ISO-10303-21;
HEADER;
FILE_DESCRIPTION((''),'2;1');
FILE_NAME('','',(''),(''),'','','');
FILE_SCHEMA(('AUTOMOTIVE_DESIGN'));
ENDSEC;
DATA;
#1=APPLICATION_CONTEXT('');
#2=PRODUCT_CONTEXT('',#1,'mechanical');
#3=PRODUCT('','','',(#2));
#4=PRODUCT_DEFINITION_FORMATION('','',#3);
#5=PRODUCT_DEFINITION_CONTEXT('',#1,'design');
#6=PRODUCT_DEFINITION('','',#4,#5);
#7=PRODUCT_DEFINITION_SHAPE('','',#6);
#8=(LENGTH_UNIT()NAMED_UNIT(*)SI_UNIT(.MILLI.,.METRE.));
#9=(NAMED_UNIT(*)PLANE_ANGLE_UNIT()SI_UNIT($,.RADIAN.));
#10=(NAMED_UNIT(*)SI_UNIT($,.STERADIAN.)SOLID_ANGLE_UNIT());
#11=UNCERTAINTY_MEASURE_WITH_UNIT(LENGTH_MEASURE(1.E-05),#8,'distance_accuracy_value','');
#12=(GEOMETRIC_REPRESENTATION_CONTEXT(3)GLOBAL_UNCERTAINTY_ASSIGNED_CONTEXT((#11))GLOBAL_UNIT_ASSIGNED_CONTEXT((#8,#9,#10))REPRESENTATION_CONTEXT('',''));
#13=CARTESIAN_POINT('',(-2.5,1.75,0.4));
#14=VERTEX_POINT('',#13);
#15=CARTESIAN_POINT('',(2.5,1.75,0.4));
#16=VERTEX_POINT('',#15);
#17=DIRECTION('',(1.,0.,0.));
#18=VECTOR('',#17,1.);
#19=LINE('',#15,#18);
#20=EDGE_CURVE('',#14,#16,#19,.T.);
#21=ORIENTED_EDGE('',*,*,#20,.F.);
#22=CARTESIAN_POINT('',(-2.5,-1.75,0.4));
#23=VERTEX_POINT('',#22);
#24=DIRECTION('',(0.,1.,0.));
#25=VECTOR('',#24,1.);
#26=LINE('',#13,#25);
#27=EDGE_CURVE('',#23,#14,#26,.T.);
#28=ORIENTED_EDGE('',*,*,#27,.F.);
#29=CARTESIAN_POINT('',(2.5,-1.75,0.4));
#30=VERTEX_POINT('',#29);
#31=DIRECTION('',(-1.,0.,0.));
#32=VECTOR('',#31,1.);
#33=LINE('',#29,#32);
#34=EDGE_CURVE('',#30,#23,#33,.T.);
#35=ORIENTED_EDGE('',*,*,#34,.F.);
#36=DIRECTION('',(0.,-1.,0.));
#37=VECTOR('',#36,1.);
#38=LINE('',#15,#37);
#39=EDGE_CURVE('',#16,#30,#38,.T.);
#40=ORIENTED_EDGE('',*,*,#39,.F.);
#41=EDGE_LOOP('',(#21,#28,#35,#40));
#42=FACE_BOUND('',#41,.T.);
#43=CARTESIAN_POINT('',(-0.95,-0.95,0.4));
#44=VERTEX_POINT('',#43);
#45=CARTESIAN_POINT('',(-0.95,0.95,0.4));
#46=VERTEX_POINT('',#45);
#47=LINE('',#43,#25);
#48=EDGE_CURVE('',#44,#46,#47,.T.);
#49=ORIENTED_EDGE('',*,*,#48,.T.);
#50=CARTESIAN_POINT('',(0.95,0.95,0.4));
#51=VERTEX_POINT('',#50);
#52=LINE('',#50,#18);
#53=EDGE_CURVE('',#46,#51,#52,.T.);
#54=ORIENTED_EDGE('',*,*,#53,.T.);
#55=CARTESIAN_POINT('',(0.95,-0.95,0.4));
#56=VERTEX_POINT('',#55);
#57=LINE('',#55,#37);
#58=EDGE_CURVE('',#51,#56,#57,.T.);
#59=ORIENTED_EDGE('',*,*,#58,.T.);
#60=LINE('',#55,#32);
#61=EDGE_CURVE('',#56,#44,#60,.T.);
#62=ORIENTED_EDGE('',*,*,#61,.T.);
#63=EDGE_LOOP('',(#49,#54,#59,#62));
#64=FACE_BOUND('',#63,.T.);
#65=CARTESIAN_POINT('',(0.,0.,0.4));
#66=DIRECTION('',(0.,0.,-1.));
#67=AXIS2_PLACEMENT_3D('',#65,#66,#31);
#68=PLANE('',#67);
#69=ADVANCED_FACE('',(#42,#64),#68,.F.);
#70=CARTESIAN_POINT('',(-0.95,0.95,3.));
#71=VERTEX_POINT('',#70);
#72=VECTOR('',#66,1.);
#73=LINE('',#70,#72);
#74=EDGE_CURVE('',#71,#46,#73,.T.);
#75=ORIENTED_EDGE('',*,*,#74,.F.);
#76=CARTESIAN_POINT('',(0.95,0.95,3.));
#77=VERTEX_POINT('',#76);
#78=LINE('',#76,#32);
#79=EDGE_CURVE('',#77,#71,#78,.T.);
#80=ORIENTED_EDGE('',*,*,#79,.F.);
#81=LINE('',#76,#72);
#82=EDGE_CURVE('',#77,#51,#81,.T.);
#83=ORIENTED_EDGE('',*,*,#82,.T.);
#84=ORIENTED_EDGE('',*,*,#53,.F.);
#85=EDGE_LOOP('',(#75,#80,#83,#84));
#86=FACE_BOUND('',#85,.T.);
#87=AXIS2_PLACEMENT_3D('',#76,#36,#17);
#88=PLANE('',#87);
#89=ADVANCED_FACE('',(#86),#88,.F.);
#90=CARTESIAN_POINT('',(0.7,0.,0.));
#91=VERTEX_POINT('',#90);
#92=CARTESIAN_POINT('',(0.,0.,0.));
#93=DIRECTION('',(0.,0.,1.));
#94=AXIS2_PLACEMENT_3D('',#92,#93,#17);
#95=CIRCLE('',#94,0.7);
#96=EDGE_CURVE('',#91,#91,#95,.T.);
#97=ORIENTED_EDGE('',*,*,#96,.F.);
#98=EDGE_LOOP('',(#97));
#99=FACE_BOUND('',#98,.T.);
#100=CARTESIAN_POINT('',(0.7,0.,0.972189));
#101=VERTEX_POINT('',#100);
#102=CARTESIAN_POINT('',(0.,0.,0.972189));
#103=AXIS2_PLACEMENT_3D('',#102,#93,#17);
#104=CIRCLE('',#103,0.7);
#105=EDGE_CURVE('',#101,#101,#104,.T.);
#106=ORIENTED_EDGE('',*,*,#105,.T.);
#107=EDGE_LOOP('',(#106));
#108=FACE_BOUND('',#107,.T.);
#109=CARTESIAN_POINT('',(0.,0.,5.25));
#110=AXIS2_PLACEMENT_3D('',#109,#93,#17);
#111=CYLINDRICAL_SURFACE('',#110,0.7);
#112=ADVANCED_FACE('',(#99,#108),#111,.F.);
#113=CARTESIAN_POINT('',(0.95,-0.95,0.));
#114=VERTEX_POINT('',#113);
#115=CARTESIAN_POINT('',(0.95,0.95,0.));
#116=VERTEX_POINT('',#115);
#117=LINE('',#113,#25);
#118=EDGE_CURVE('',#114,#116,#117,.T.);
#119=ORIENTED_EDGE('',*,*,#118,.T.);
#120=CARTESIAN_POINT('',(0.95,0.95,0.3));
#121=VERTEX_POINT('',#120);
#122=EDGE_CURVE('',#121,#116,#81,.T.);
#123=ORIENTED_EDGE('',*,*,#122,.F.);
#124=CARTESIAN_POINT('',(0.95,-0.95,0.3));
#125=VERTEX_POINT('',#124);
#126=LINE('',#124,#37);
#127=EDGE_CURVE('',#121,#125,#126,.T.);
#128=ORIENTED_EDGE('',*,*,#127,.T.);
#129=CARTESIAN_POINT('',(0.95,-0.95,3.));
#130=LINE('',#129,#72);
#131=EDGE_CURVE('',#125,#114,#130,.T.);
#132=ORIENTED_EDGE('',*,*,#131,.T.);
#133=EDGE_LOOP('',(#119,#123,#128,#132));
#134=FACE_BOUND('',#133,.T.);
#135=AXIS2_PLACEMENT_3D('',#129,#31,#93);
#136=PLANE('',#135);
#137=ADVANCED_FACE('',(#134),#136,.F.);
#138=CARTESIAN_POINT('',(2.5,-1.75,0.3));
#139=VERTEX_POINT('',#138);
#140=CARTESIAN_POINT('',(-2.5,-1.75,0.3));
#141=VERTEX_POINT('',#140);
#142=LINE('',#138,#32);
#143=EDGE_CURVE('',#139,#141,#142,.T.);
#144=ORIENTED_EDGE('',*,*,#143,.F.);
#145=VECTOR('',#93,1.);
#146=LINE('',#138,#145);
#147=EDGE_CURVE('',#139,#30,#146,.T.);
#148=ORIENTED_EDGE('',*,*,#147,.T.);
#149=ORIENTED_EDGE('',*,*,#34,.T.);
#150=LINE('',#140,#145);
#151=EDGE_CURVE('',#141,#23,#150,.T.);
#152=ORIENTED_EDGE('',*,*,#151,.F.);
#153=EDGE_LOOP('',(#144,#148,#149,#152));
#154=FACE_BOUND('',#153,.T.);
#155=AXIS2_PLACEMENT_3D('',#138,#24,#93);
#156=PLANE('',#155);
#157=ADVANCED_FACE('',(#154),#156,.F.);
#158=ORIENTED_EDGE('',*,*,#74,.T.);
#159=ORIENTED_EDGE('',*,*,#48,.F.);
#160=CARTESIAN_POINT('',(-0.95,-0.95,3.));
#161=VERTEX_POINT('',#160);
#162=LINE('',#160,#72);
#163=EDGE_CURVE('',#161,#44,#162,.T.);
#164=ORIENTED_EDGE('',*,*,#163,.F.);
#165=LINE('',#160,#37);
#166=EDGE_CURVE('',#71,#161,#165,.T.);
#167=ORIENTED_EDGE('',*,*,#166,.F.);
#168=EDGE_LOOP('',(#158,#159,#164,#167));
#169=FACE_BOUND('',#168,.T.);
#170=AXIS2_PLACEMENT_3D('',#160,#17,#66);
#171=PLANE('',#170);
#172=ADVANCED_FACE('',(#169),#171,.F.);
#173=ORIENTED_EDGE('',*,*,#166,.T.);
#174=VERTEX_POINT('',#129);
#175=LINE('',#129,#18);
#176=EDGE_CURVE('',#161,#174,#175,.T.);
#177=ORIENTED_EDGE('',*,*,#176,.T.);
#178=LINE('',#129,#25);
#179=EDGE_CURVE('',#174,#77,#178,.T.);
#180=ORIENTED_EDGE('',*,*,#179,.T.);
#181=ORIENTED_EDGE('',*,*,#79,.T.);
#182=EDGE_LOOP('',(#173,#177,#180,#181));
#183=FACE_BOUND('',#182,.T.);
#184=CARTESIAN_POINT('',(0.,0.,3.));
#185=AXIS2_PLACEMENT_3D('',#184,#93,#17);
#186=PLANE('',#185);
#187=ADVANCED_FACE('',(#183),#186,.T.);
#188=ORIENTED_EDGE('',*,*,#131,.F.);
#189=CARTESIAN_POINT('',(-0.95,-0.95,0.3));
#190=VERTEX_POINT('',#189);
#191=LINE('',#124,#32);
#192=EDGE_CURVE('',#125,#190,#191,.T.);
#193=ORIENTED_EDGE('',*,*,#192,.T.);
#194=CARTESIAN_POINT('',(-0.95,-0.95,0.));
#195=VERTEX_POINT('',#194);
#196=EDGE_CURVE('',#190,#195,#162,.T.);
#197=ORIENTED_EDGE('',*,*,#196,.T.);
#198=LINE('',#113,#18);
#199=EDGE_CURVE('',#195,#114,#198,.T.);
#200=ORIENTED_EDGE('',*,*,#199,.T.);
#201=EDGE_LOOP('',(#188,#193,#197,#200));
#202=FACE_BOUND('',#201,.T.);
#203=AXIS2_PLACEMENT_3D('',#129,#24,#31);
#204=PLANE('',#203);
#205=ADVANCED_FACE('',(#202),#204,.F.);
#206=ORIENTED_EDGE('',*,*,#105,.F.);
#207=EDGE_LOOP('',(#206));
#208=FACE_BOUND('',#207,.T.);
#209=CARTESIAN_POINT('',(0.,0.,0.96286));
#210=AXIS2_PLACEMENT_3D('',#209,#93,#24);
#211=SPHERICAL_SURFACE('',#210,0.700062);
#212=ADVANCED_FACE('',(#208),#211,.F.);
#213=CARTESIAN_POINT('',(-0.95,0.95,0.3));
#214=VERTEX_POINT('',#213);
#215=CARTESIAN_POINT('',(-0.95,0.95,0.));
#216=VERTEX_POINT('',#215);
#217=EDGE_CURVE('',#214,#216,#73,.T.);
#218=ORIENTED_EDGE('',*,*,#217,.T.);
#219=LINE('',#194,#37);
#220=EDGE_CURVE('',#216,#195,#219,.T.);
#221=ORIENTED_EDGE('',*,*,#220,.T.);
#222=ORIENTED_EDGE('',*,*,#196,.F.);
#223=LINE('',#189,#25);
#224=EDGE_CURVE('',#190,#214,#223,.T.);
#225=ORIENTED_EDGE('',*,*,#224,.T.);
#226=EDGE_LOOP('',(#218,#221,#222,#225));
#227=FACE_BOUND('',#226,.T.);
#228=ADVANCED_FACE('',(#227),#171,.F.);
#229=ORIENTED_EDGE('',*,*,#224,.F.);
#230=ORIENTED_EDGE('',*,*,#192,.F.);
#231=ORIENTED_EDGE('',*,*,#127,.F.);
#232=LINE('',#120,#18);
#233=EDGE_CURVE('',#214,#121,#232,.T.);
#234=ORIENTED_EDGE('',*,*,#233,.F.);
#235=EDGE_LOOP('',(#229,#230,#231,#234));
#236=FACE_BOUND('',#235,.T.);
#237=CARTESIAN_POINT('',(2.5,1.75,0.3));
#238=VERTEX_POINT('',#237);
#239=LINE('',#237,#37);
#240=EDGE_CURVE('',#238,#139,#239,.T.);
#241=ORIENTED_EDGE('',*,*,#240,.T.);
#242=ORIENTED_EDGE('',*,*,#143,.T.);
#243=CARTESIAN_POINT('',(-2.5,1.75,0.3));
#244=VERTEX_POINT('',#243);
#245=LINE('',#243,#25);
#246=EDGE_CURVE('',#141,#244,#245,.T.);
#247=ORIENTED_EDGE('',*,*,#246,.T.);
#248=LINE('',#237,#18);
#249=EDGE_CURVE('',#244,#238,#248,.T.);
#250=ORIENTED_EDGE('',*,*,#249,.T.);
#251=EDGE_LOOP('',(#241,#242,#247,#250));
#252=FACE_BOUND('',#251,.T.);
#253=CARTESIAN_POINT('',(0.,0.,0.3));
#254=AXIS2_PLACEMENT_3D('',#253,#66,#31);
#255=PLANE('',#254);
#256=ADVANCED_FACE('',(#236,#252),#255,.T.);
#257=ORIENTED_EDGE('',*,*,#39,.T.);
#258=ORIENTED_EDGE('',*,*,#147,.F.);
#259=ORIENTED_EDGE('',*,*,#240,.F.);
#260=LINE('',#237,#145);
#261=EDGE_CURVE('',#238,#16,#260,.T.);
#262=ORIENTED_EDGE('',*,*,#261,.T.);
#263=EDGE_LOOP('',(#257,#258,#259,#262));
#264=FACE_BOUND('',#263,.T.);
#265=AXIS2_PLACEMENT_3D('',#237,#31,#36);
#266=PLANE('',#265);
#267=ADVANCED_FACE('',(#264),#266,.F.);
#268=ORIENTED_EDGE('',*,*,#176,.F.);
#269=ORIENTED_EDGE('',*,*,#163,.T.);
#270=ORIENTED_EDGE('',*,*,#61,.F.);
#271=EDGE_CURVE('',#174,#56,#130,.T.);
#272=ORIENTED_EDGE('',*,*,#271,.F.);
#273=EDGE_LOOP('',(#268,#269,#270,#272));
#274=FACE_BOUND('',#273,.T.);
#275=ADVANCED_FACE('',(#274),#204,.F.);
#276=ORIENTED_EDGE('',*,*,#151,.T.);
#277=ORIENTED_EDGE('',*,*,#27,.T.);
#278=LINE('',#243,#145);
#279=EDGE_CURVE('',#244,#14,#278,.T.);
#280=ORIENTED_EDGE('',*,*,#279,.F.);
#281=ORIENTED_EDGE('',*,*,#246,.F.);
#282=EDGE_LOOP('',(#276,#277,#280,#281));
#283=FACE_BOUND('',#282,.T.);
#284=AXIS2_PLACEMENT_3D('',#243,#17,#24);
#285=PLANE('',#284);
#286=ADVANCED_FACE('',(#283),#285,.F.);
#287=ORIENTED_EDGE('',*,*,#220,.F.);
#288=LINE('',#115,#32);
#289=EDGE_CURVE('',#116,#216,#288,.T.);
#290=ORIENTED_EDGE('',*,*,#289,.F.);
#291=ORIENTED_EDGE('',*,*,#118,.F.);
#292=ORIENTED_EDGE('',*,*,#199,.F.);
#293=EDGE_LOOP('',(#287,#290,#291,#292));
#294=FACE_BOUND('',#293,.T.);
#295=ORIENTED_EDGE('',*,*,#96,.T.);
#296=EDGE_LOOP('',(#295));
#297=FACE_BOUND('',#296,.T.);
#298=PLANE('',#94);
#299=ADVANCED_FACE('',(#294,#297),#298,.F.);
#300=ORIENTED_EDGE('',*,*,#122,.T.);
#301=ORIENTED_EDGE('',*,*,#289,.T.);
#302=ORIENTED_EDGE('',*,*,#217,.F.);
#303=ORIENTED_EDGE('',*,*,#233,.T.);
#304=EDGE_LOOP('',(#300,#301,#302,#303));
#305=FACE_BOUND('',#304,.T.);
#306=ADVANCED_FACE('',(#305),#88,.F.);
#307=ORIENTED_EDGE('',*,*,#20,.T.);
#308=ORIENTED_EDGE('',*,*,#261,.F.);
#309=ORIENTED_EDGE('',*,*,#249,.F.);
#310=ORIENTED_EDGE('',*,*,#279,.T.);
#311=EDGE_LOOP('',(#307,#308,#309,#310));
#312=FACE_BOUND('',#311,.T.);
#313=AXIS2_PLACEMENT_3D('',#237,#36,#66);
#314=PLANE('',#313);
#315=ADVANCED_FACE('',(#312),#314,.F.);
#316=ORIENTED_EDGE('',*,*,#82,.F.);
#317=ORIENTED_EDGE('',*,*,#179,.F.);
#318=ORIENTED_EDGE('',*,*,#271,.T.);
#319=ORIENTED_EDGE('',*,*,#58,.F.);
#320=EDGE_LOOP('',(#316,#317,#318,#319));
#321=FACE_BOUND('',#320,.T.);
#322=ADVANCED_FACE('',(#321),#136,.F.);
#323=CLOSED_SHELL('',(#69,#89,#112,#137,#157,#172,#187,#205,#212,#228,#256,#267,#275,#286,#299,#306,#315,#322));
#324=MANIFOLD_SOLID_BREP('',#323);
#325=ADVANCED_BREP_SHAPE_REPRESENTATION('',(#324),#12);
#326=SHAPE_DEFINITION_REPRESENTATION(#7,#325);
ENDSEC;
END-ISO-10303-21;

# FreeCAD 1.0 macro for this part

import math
import FreeCAD as App
import Part
import Sketcher
Q = App.Units.Quantity


def add_polygon(sketch, points):
    """Adds a closed chain of lines whose ends are joined by coincident constraints."""
    first, n = sketch.GeometryCount, len(points)
    for a, b in zip(points, points[1:] + points[:1]):
        sketch.addGeometry(Part.LineSegment(App.Vector(*a, 0), App.Vector(*b, 0)), False)
    for i in range(n):
        sketch.addConstraint(Sketcher.Constraint("Coincident", first + i, 2, first + (i + 1) % n, 1))

doc = App.newDocument("Part")
params = doc.addObject("Spreadsheet::Sheet", "Params")
for row, (alias, value) in enumerate([
    ("sketch1_width", "1.9 mm"),
    ("pad1_length", "3 mm"),
    ("sketch2_width", "0.7 mm"),
    ("groove_angle", "360 deg"),
    ("sketch3_width", "5 mm"),
    ("sketch3_height", "3.5 mm"),
    ("pad2_length", "0.1 mm"),
], start=1):
    params.set(f"A{row}", alias)
    params.set(f"B{row}", "=" + value)
    params.setAlias(f"B{row}", alias)

body = doc.addObject("PartDesign::Body", "Body")

# Sketch on XY plane
sketch1 = doc.addObject("Sketcher::SketchObject", "Sketch")
body.addObject(sketch1)
sketch1.AttachmentSupport = (doc.XY_Plane, [""])
sketch1.MapMode = "FlatFace"
add_polygon(sketch1, [(-0.95, 0.95), (-0.95, -0.95), (0.95, -0.95), (0.95, 0.95)])  # lines 0-3
sketch1.addConstraint([
    Sketcher.Constraint("Vertical", 0),
    Sketcher.Constraint("Horizontal", 1),
    Sketcher.Constraint("Vertical", 2),
    Sketcher.Constraint("Horizontal", 3),
    Sketcher.Constraint("Symmetric", 0, 2, 2, 2, -1, 1),
    Sketcher.Constraint("Equal", 3, 0),
    Sketcher.Constraint("DistanceX", 1, 1, 1, 2, Q("1.9 mm")),
])
sketch1.setExpression("Constraints[10]", "Params.sketch1_width")
pad1 = doc.addObject("PartDesign::Pad", "Pad")
body.addObject(pad1)
pad1.Profile = sketch1
pad1.setExpression("Length", "Params.pad1_length")

# Sketch on YZ plane
sketch2 = doc.addObject("Sketcher::SketchObject", "Sketch001")
body.addObject(sketch2)
sketch2.AttachmentSupport = (doc.YZ_Plane, [""])
sketch2.MapMode = "FlatFace"
sketch2.addGeometry([
    Part.LineSegment(App.Vector(0, 0, 0), App.Vector(0.7, 0, 0)),
    Part.LineSegment(App.Vector(0.7, 0, 0), App.Vector(0.7, 0.972189, 0)),
    Part.ArcOfCircle(Part.Circle(App.Vector(0, 0.96286, 0), App.Vector(0, 0, 1), 0.700062), math.radians(0.763544), math.radians(90)),
    Part.LineSegment(App.Vector(0, 1.662922, 0), App.Vector(0, 0, 0)),
], False)
sketch2.addConstraint([
    Sketcher.Constraint("Coincident", 0, 2, 1, 1),
    Sketcher.Constraint("Coincident", 1, 2, 2, 1),
    Sketcher.Constraint("Coincident", 2, 2, 3, 1),
    Sketcher.Constraint("Coincident", 3, 2, 0, 1),
    Sketcher.Constraint("Horizontal", 0),
    Sketcher.Constraint("Vertical", 1),
    Sketcher.Constraint("Vertical", 3),
    Sketcher.Constraint("Coincident", 3, 2, -1, 1),
    Sketcher.Constraint("PointOnObject", 2, 3, -2),
    Sketcher.Constraint("DistanceX", 0, 1, 0, 2, Q("0.7 mm")),
    Sketcher.Constraint("Radius", 2, Q("0.700062 mm")),
    Sketcher.Constraint("DistanceY", 1, 1, 1, 2, Q("0.972189 mm")),
])
sketch2.setExpression("Constraints[9]", "Params.sketch2_width")
groove = doc.addObject("PartDesign::Groove", "Groove")
body.addObject(groove)
groove.Profile = sketch2
groove.ReferenceAxis = (sketch2, ["V_Axis"])
groove.setExpression("Angle", "Params.groove_angle")

# Sketch on XY plane
sketch3 = doc.addObject("Sketcher::SketchObject", "Sketch002")
body.addObject(sketch3)
sketch3.AttachmentSupport = (doc.XY_Plane, [""])
sketch3.MapMode = "FlatFace"
sketch3.AttachmentOffset = App.Placement(App.Vector(0, 0, 0.4), App.Rotation())
add_polygon(sketch3, [(2.5, 1.75), (2.5, -1.75), (-2.5, -1.75), (-2.5, 1.75)])  # lines 0-3
add_polygon(sketch3, [(-0.765033, -0.736899), (0.765033, -0.736899), (0.765033, 0.736899), (-0.765033, 0.736899)])  # lines 4-7
sketch3.addConstraint([
    Sketcher.Constraint("Vertical", 0),
    Sketcher.Constraint("Horizontal", 1),
    Sketcher.Constraint("Vertical", 2),
    Sketcher.Constraint("Horizontal", 3),
    Sketcher.Constraint("Horizontal", 4),
    Sketcher.Constraint("Vertical", 5),
    Sketcher.Constraint("Horizontal", 6),
    Sketcher.Constraint("Vertical", 7),
    Sketcher.Constraint("Symmetric", 0, 2, 2, 2, -1, 1),
    Sketcher.Constraint("Symmetric", 4, 2, 6, 2, -1, 1),
    Sketcher.Constraint("DistanceX", 1, 2, 1, 1, Q("5 mm")),
    Sketcher.Constraint("DistanceY", 0, 2, 0, 1, Q("3.5 mm")),
    Sketcher.Constraint("DistanceY", 4, 2, -1, 1, Q("0.736899 mm")),
    Sketcher.Constraint("DistanceX", 4, 1, 4, 2, Q("1.530067 mm")),
])
sketch3.setExpression("Constraints[18]", "Params.sketch3_width")
sketch3.setExpression("Constraints[19]", "Params.sketch3_height")
pad2 = doc.addObject("PartDesign::Pad", "Pad001")
body.addObject(pad2)
pad2.Profile = sketch3
pad2.setExpression("Length", "Params.pad2_length")
pad2.Reversed = True

doc.recompute()
